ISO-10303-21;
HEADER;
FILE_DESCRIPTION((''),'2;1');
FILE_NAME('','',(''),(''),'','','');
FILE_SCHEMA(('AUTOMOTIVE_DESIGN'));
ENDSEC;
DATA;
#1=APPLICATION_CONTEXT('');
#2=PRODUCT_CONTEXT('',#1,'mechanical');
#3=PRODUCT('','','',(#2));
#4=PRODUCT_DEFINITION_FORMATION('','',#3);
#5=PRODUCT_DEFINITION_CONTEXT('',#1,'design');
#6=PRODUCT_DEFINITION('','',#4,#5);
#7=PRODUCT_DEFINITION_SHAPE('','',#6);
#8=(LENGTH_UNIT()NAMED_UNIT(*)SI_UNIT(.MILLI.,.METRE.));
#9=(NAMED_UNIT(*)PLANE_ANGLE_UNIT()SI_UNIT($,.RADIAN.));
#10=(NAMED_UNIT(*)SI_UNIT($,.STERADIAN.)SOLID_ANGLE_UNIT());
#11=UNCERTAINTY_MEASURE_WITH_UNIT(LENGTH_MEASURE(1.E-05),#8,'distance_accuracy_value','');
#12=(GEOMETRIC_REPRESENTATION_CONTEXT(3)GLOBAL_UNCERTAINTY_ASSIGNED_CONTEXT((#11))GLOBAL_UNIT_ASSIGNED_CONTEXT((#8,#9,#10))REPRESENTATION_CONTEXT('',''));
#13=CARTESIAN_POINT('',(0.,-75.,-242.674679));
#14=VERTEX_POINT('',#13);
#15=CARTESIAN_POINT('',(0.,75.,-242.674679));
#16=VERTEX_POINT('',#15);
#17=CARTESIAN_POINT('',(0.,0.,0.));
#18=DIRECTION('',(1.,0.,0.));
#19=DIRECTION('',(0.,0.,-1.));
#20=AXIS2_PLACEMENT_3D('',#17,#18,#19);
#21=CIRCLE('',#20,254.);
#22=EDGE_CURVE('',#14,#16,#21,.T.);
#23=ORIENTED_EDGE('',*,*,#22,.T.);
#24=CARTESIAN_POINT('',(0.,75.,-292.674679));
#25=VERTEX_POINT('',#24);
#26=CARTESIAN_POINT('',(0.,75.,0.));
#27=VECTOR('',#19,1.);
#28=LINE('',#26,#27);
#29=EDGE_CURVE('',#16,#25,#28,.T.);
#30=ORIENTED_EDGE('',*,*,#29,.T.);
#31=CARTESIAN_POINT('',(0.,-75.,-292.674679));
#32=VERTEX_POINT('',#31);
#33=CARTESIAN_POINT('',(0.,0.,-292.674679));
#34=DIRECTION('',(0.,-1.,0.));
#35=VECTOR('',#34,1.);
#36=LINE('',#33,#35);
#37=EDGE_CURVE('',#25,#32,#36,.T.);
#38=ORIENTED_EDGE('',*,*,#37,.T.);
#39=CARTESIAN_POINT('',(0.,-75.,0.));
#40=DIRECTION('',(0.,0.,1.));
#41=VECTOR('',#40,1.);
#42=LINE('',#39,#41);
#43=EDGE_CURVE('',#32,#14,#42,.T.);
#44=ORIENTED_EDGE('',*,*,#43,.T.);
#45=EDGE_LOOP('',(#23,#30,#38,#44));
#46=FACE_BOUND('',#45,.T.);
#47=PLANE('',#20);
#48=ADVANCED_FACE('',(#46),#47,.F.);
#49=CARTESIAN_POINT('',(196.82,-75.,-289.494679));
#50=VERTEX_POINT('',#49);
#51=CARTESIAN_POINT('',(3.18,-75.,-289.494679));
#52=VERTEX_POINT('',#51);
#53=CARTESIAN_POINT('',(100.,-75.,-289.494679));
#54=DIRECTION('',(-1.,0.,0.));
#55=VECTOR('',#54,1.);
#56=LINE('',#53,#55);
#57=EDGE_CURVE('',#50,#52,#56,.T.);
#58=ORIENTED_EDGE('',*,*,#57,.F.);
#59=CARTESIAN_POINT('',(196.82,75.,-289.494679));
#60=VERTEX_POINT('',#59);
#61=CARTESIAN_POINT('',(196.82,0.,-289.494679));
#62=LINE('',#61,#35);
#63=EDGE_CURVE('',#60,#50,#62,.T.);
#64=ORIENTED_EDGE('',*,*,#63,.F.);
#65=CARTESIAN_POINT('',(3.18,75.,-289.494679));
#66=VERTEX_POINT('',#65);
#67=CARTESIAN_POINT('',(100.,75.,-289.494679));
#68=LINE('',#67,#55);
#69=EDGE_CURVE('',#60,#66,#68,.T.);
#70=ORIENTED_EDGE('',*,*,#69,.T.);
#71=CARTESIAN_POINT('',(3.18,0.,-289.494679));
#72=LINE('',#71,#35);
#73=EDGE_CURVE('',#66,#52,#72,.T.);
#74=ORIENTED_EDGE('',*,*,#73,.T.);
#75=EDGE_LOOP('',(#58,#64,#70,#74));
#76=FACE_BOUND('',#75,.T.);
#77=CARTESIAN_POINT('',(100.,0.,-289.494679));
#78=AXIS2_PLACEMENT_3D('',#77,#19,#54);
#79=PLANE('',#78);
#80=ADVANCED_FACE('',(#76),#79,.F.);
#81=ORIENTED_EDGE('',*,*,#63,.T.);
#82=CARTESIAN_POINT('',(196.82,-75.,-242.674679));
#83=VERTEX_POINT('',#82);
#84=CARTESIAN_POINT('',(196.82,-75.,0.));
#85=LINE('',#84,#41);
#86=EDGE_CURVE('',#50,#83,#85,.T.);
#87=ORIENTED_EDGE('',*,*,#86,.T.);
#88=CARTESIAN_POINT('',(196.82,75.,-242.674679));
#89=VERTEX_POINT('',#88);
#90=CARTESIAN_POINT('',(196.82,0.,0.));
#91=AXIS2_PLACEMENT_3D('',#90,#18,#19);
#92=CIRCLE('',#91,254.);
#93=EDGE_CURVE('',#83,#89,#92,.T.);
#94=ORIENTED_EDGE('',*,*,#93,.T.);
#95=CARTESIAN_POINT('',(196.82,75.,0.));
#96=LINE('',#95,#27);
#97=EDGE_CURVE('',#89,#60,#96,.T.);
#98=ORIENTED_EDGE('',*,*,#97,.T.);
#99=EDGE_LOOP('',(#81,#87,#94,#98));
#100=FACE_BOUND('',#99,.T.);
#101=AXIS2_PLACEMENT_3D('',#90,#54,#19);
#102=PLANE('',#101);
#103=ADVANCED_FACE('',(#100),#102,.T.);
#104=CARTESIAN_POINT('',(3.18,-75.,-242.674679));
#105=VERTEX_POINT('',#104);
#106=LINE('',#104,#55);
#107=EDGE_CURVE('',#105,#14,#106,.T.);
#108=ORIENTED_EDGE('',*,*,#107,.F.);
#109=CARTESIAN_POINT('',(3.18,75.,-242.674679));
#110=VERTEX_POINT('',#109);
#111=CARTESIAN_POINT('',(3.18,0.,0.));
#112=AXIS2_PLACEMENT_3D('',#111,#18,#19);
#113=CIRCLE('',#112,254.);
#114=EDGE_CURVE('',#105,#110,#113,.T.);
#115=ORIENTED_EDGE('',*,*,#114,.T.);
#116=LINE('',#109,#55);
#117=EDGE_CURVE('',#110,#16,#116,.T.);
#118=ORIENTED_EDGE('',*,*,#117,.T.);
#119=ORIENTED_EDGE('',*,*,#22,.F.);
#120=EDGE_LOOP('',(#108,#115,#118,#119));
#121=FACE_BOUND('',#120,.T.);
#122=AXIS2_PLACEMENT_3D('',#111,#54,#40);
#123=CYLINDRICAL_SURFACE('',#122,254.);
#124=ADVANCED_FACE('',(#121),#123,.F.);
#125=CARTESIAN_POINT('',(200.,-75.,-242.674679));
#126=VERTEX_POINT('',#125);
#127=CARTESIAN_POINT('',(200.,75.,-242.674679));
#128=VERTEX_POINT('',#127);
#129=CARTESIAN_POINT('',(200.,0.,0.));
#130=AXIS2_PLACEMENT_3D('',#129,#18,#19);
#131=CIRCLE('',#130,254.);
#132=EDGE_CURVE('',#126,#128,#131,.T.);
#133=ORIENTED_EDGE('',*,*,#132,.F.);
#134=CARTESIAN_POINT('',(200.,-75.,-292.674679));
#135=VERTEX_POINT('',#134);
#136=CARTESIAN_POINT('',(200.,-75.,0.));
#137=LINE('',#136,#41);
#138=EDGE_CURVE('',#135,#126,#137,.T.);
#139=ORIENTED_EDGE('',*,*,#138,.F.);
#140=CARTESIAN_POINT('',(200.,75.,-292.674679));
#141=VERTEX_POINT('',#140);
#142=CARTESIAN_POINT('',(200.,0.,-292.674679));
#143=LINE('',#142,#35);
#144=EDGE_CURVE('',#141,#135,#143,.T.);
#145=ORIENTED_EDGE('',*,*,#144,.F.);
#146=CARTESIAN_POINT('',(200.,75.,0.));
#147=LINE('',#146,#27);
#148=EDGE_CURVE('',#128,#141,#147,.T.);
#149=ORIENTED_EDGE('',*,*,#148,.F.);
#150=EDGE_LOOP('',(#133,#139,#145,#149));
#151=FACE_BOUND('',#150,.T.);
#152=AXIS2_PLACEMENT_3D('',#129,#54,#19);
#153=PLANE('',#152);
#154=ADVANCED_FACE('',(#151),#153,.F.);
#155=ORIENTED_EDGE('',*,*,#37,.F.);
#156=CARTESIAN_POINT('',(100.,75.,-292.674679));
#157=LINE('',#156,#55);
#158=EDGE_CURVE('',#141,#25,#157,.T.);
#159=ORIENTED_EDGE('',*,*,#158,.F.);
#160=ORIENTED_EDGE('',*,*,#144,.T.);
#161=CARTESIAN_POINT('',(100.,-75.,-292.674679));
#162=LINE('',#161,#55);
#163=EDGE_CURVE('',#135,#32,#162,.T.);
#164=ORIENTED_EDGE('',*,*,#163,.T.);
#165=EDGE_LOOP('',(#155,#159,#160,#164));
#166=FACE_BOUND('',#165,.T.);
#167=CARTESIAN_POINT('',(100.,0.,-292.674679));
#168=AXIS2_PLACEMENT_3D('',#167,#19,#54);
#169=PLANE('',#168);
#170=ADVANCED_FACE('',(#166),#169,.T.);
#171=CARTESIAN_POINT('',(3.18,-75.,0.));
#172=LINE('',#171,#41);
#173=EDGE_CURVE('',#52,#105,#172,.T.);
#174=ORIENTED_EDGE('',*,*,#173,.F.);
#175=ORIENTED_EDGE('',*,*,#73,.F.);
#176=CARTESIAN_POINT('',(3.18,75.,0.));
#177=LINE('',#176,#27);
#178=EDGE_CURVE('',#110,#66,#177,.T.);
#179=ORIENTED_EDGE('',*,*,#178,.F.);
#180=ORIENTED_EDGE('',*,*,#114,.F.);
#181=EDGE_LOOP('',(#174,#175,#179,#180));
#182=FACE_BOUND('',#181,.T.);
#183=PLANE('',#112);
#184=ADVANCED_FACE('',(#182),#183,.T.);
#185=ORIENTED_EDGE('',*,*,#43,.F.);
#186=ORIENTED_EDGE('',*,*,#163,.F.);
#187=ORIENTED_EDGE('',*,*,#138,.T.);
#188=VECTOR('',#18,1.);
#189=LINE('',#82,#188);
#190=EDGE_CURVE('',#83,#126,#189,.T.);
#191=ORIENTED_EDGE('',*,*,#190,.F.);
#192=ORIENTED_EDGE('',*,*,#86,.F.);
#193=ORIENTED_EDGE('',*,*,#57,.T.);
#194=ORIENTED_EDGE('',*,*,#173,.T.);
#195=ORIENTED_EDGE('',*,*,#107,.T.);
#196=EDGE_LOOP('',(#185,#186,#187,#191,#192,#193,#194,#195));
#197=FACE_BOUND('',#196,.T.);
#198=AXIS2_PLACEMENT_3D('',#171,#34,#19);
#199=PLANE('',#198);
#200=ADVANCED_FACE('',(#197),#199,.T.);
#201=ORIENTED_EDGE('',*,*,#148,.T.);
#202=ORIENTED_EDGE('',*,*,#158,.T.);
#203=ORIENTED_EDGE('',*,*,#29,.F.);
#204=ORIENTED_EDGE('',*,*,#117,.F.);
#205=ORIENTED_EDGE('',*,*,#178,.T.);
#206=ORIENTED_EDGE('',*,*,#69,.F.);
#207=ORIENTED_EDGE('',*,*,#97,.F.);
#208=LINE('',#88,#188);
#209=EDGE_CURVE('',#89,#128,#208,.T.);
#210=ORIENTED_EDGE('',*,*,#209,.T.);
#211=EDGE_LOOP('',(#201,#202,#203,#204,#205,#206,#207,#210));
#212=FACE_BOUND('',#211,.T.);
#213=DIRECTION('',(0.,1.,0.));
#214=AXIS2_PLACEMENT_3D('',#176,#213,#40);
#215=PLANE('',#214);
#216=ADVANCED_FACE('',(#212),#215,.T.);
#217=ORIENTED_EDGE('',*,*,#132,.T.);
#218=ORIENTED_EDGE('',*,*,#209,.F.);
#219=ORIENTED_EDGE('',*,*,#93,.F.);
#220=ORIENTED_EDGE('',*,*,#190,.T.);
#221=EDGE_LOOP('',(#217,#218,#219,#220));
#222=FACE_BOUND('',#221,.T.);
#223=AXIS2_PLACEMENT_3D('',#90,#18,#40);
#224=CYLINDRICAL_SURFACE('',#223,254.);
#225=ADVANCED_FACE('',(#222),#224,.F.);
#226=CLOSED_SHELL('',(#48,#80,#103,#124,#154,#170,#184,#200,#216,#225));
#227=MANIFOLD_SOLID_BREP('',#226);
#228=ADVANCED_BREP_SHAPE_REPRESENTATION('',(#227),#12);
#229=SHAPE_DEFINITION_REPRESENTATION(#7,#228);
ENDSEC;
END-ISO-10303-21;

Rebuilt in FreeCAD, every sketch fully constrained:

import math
import FreeCAD as App
import Part
import Sketcher
from FreeCAD import Vector


def add_polygon(sketch, points):
    """Adds a closed chain of lines whose ends are joined by coincident constraints."""
    first, n = sketch.GeometryCount, len(points)
    for a, b in zip(points, points[1:] + points[:1]):
        sketch.addGeometry(Part.LineSegment(App.Vector(*a, 0), App.Vector(*b, 0)), False)
    for i in range(n):
        sketch.addConstraint(Sketcher.Constraint("Coincident", first + i, 2, first + (i + 1) % n, 1))

doc = App.newDocument("Part")
body = doc.addObject("PartDesign::Body", "Body")

# Sketch on YZ plane
sketch1 = body.newObject("Sketcher::SketchObject", "Sketch")
sketch1.AttachmentSupport = (doc.getObject("YZ_Plane"), [""])
sketch1.MapMode = "FlatFace"
sketch1.addGeometry(Part.LineSegment(Vector(75, -289, 0), Vector(75, -243, 0)), False)
sketch1.addGeometry(Part.ArcOfCircle(Part.Circle(Vector(0, 0, 0), Vector(0, 0, 1), 254), math.radians(-90), math.radians(-72.83)), False)
sketch1.addGeometry(Part.ArcOfCircle(Part.Circle(Vector(0, 0, 0), Vector(0, 0, 1), 254), math.radians(-107.17), math.radians(-90)), False)
sketch1.addGeometry(Part.LineSegment(Vector(-75, -243, 0), Vector(-75, -289, 0)), False)
sketch1.addGeometry(Part.LineSegment(Vector(-75, -289, 0), Vector(75, -289, 0)), False)
sketch1.addConstraint(Sketcher.Constraint("Coincident", 0, 2, 1, 2))
sketch1.addConstraint(Sketcher.Constraint("Tangent", 1, 1, 2, 2))
sketch1.addConstraint(Sketcher.Constraint("Coincident", 2, 1, 3, 1))
sketch1.addConstraint(Sketcher.Constraint("Coincident", 3, 2, 4, 1))
sketch1.addConstraint(Sketcher.Constraint("Coincident", 4, 2, 0, 1))
sketch1.addConstraint(Sketcher.Constraint("Vertical", 0))
sketch1.addConstraint(Sketcher.Constraint("Vertical", 3))
sketch1.addConstraint(Sketcher.Constraint("Horizontal", 4))
sketch1.addConstraint(Sketcher.Constraint("Coincident", 1, 3, -1, 1))
sketch1.addConstraint(Sketcher.Constraint("Equal", 1, 2))
sketch1.addConstraint(Sketcher.Constraint("PointOnObject", 1, 1, -2))
sketch1.addConstraint(Sketcher.Constraint("Horizontal", 0, 2, 2, 1))
sketch1.addConstraint(Sketcher.Constraint("Radius", 1, 254.0))
sketch1.addConstraint(Sketcher.Constraint("DistanceX", 4, 1, 4, 2, 150.0))
sketch1.addConstraint(Sketcher.Constraint("DistanceY", 0, 1, 0, 2, 46.82))
pad1 = body.newObject("PartDesign::Pad", "Pad")
pad1.Profile = sketch1
pad1.Length = 3.18

# Sketch on YZ plane
sketch2 = body.newObject("Sketcher::SketchObject", "Sketch001")
sketch2.AttachmentSupport = (doc.getObject("YZ_Plane"), [""])
sketch2.MapMode = "FlatFace"
add_polygon(sketch2, [(75, -289.5), (-75, -289.5), (-75, -292.7), (75, -292.7)])  # lines 0-3
sketch2.addConstraint(Sketcher.Constraint("Horizontal", 0))
sketch2.addConstraint(Sketcher.Constraint("Vertical", 1))
sketch2.addConstraint(Sketcher.Constraint("Horizontal", 2))
sketch2.addConstraint(Sketcher.Constraint("Vertical", 3))
sketch2.addConstraint(Sketcher.Constraint("DistanceX", 0, 2, 0, 1, 150.0))
sketch2.addConstraint(Sketcher.Constraint("DistanceX", 0, 2, -1, 1, 75.0))
sketch2.addConstraint(Sketcher.Constraint("DistanceY", 1, 2, 1, 1, 3.18))
sketch2.addConstraint(Sketcher.Constraint("DistanceY", 0, 2, -1, 1, 289.494679))
pad2 = body.newObject("PartDesign::Pad", "Pad001")
pad2.Profile = sketch2
pad2.Length = 100
body2 = doc.addObject("PartDesign::Body", "Body001")
doc.recompute()

body2.BaseFeature = body
doc.recompute()

mirroring = doc.addObject("Part::Mirroring", "Mirroring")
mirroring.Source = body
mirroring.Base = Vector(100, 0, 0)
mirroring.Normal = Vector(1, 0, 0)
body3 = doc.addObject("PartDesign::Body", "Body002")
body3.BaseFeature = mirroring
boolean = body2.newObject("PartDesign::Boolean", "Boolean")
boolean.Type = "Fuse"
boolean.addObjects([body3])
doc.recompute()
mirroring.Visibility = False

doc.recompute()
